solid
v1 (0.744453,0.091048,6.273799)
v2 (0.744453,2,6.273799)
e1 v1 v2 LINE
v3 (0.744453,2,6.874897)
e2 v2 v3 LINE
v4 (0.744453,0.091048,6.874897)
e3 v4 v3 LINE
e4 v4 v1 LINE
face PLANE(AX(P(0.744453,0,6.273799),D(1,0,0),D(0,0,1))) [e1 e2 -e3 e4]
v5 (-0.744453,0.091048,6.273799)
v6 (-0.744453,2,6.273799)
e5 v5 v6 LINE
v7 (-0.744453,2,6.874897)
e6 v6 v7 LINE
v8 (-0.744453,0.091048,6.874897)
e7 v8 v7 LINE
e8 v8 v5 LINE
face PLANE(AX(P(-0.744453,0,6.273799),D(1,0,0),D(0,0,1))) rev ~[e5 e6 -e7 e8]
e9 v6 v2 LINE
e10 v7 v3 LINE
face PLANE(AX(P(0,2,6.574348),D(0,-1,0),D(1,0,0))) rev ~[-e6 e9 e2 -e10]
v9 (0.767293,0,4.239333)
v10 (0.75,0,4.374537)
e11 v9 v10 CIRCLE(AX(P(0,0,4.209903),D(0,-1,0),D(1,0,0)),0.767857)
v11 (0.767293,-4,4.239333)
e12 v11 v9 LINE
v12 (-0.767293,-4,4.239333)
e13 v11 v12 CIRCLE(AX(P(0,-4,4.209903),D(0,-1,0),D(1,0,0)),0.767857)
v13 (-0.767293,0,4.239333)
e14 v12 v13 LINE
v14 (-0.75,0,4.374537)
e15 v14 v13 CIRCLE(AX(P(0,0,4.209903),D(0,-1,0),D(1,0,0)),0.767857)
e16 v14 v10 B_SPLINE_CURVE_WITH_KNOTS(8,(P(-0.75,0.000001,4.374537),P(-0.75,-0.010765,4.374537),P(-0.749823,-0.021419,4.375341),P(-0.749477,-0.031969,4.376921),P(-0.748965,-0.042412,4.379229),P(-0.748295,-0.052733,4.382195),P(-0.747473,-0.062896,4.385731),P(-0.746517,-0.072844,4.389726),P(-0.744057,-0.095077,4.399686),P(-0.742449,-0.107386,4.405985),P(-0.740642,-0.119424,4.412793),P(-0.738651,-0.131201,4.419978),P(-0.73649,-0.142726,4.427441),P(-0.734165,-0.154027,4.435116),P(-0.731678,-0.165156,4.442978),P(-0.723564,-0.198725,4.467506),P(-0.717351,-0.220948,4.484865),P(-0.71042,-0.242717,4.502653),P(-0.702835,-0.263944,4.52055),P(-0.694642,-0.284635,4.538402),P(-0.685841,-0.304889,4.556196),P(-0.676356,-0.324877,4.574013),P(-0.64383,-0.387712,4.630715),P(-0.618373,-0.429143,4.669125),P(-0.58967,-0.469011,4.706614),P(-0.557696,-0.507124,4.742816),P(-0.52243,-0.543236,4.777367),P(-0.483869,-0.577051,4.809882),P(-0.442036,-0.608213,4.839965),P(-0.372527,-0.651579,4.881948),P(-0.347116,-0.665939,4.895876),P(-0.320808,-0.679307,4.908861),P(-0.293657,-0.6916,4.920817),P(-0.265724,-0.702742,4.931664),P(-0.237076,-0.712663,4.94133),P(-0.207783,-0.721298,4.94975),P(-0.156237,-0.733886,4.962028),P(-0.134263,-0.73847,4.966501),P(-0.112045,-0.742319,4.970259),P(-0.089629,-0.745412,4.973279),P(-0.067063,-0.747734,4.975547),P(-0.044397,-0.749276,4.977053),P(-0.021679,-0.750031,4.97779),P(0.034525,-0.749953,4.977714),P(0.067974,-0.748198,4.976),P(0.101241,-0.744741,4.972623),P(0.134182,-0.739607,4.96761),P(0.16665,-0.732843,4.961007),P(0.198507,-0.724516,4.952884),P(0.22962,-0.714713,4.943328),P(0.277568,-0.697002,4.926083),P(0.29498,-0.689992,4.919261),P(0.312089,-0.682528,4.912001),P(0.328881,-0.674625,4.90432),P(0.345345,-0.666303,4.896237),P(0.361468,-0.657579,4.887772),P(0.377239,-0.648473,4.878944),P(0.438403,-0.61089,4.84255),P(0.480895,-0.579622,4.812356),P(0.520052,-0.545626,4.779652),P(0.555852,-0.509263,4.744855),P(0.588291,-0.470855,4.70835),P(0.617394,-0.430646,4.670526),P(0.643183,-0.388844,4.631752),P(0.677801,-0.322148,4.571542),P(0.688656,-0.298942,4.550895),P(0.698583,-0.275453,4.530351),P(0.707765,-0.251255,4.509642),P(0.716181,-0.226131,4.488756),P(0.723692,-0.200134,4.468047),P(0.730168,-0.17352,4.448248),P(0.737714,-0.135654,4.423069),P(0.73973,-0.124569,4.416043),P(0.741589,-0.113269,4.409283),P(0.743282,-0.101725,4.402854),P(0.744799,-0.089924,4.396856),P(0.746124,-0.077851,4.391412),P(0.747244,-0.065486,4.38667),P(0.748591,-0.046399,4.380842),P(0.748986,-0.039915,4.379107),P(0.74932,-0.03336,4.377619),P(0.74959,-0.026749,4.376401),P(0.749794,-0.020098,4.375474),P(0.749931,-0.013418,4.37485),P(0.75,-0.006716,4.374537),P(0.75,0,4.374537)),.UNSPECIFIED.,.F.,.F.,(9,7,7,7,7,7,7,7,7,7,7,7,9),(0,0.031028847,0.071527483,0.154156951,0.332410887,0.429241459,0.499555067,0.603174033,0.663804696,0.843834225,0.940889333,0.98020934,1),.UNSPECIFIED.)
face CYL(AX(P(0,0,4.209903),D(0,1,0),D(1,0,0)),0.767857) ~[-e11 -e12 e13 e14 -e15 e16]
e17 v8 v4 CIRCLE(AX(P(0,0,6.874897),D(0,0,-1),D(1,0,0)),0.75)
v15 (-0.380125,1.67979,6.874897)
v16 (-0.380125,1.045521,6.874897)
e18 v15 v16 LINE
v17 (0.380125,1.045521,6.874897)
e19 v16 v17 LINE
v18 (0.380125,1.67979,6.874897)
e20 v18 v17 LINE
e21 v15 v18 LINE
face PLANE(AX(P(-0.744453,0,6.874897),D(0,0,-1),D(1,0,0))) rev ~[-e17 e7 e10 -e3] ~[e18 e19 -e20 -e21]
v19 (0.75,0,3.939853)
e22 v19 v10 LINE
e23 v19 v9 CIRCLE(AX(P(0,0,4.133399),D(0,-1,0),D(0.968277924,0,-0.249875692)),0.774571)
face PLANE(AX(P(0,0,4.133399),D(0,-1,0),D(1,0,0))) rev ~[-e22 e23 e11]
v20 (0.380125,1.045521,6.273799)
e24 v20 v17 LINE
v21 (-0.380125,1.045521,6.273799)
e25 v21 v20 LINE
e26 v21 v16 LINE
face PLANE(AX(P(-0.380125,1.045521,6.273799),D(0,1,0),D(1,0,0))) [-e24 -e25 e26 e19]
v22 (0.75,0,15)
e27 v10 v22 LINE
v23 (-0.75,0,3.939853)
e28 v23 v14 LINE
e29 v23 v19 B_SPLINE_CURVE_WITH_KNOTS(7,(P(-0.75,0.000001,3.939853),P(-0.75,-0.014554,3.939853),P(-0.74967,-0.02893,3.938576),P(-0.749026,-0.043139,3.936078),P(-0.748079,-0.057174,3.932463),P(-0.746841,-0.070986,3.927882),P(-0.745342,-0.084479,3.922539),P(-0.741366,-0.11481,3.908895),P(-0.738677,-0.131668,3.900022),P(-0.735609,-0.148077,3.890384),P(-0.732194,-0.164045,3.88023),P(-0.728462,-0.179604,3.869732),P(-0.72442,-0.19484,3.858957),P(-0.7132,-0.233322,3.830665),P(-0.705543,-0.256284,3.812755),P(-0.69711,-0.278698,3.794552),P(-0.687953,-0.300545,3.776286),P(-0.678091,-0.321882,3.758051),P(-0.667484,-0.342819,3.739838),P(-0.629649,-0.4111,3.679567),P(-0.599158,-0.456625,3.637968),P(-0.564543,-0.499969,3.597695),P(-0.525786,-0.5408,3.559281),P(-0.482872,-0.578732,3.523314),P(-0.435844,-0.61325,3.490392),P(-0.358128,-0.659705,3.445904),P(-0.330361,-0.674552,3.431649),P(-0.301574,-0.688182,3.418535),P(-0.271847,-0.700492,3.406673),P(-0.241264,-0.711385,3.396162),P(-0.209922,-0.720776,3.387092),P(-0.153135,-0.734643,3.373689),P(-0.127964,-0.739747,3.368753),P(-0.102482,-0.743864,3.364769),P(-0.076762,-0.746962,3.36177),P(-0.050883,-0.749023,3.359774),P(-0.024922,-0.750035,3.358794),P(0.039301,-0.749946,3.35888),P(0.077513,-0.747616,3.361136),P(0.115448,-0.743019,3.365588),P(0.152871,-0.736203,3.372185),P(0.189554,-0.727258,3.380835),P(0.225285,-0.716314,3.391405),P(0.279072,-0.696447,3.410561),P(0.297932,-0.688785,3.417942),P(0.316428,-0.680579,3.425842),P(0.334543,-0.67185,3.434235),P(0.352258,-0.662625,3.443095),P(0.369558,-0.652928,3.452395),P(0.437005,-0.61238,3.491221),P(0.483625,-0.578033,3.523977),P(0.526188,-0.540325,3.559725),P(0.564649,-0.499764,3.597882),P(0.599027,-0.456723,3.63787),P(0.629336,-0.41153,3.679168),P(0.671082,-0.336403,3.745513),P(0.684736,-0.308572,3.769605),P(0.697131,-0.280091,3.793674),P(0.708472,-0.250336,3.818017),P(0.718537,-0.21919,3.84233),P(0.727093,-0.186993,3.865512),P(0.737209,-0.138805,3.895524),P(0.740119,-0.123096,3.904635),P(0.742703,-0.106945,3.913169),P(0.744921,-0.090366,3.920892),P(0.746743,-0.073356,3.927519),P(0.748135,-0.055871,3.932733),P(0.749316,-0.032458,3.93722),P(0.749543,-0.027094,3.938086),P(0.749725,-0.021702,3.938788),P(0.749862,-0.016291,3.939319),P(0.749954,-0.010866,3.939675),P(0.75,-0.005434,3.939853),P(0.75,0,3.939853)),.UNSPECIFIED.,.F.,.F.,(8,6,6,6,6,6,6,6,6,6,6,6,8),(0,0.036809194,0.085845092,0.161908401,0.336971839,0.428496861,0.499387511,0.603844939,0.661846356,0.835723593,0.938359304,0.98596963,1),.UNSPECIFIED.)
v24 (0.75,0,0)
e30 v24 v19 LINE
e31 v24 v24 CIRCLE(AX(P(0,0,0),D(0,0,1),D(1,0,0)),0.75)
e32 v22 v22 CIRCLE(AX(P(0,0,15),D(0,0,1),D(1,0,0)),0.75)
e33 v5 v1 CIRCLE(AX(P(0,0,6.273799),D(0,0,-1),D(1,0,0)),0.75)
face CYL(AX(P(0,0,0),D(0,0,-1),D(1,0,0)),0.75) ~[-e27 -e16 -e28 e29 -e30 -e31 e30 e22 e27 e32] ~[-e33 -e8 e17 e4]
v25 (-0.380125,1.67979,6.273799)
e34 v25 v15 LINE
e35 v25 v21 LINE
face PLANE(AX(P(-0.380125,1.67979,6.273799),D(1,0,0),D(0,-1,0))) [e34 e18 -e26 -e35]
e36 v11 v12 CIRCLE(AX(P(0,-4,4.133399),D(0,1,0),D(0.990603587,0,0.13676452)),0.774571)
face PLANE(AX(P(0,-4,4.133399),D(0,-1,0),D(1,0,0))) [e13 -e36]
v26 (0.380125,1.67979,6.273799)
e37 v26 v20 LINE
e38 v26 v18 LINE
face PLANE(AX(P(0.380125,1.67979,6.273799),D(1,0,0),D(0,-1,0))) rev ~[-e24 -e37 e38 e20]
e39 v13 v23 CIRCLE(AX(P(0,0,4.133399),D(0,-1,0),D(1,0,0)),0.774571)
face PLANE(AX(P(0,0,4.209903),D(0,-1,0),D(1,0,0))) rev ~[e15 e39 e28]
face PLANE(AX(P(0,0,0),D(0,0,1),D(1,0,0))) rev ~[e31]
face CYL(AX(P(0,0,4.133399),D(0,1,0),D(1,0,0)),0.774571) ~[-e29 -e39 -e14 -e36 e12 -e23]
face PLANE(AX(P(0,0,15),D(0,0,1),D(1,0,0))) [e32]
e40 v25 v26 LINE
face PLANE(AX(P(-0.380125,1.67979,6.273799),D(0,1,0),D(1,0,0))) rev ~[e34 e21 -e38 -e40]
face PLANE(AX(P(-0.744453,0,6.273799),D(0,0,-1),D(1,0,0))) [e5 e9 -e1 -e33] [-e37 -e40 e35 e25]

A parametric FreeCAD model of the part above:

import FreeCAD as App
import Part
import Sketcher

V = App.Vector
Q = App.Units.Quantity

doc = App.newDocument("Part")
params = doc.addObject("Spreadsheet::Sheet", "Params")
for row, (alias, value) in enumerate([
    ("sketch1_diameter", "1.5 mm"),
    ("pad1_length", "15 mm"),
    ("pad2_length", "4 mm"),
    ("pad3_length", "4 mm"),
    ("pad4_length", "2 mm"),
    ("pocket1_length", "25 mm"),
], start=1):
    params.set(f"A{row}", alias)
    params.set(f"B{row}", "=" + value)
    params.setAlias(f"B{row}", alias)

body = doc.addObject("PartDesign::Body", "Body")

# Sketch on XY plane
sketch1 = doc.addObject("Sketcher::SketchObject", "Sketch")
body.addObject(sketch1)
sketch1.AttachmentSupport = (doc.XY_Plane, [""])
sketch1.MapMode = "FlatFace"
sketch1.addGeometry(Part.Circle(V(0, 0, 0), V(0, 0, 1), 0.75), False)
sketch1.addConstraint(Sketcher.Constraint("Coincident", 0, 3, -1, 1))
sketch1.addConstraint(Sketcher.Constraint("Diameter", 0, Q("1.5 mm")))
sketch1.setExpression("Constraints[1]", "Params.sketch1_diameter")
pad1 = doc.addObject("PartDesign::Pad", "Pad")
body.addObject(pad1)
pad1.Profile = sketch1
pad1.setExpression("Length", "Params.pad1_length")

# Sketch on XZ plane
sketch2 = doc.addObject("Sketcher::SketchObject", "Sketch001")
body.addObject(sketch2)
sketch2.AttachmentSupport = (doc.XZ_Plane, [""])
sketch2.MapMode = "FlatFace"
sketch2.addGeometry(Part.Circle(V(0, 4.209903, 0), V(0, 0, 1), 0.767857), False)
sketch2.addConstraint(Sketcher.Constraint("PointOnObject", 0, 3, -2))
sketch2.addConstraint(Sketcher.Constraint("Diameter", 0, Q("1.535714 mm")))
sketch2.addConstraint(Sketcher.Constraint("DistanceY", -1, 1, 0, 3, Q("4.209903 mm")))
pad2 = doc.addObject("PartDesign::Pad", "Pad001")
body.addObject(pad2)
pad2.Profile = sketch2
pad2.setExpression("Length", "Params.pad2_length")

# Sketch on XZ plane
sketch3 = doc.addObject("Sketcher::SketchObject", "Sketch002")
body.addObject(sketch3)
sketch3.AttachmentSupport = (doc.XZ_Plane, [""])
sketch3.MapMode = "FlatFace"
sketch3.addGeometry(Part.Circle(V(0, 4.133399, 0), V(0, 0, 1), 0.774571), False)
sketch3.addConstraint(Sketcher.Constraint("PointOnObject", 0, 3, -2))
sketch3.addConstraint(Sketcher.Constraint("Diameter", 0, Q("1.549142 mm")))
sketch3.addConstraint(Sketcher.Constraint("DistanceY", -1, 1, 0, 3, Q("4.133399 mm")))
pad3 = doc.addObject("PartDesign::Pad", "Pad002")
body.addObject(pad3)
pad3.Profile = sketch3
pad3.setExpression("Length", "Params.pad3_length")

# Sketch on XZ plane
sketch4 = doc.addObject("Sketcher::SketchObject", "Sketch003")
body.addObject(sketch4)
sketch4.AttachmentSupport = (doc.XZ_Plane, [""])
sketch4.MapMode = "FlatFace"
sketch4.addGeometry(Part.LineSegment(V(-0.744453, 6.874897, 0), V(-0.744453, 6.273799, 0)), False)
sketch4.addGeometry(Part.LineSegment(V(-0.744453, 6.273799, 0), V(0.744453, 6.273799, 0)), False)
sketch4.addGeometry(Part.LineSegment(V(0.744453, 6.273799, 0), V(0.744453, 6.874897, 0)), False)
sketch4.addGeometry(Part.LineSegment(V(0.744453, 6.874897, 0), V(-0.744453, 6.874897, 0)), False)
sketch4.addConstraint(Sketcher.Constraint("Coincident", 0, 2, 1, 1))
sketch4.addConstraint(Sketcher.Constraint("Coincident", 1, 2, 2, 1))
sketch4.addConstraint(Sketcher.Constraint("Coincident", 2, 2, 3, 1))
sketch4.addConstraint(Sketcher.Constraint("Coincident", 3, 2, 0, 1))
sketch4.addConstraint(Sketcher.Constraint("Vertical", 0))
sketch4.addConstraint(Sketcher.Constraint("Horizontal", 1))
sketch4.addConstraint(Sketcher.Constraint("Vertical", 2))
sketch4.addConstraint(Sketcher.Constraint("Horizontal", 3))
sketch4.addConstraint(Sketcher.Constraint("DistanceY", -1, 1, 0, 2, Q("6.273799 mm")))
sketch4.addConstraint(Sketcher.Constraint("DistanceX", 1, 1, 1, 2, Q("1.488906 mm")))
sketch4.addConstraint(Sketcher.Constraint("DistanceY", 0, 2, 0, 1, Q("0.601098 mm")))
sketch4.addConstraint(Sketcher.Constraint("DistanceX", 0, 2, -1, 1, Q("0.744453 mm")))
pad4 = doc.addObject("PartDesign::Pad", "Pad003")
body.addObject(pad4)
pad4.Profile = sketch4
pad4.setExpression("Length", "Params.pad4_length")
pad4.Reversed = True

# Sketch on XY plane
sketch5 = doc.addObject("Sketcher::SketchObject", "Sketch004")
body.addObject(sketch5)
sketch5.AttachmentSupport = (doc.XY_Plane, [""])
sketch5.MapMode = "FlatFace"
sketch5.AttachmentOffset = App.Placement(V(0, 0, 6.273799), App.Rotation())
sketch5.addGeometry(Part.LineSegment(V(-0.380125, 1.045521, 0), V(-0.380125, 1.67979, 0)), False)
sketch5.addGeometry(Part.LineSegment(V(-0.380125, 1.67979, 0), V(0.380125, 1.67979, 0)), False)
sketch5.addGeometry(Part.LineSegment(V(0.380125, 1.67979, 0), V(0.380125, 1.045521, 0)), False)
sketch5.addGeometry(Part.LineSegment(V(0.380125, 1.045521, 0), V(-0.380125, 1.045521, 0)), False)
sketch5.addConstraint(Sketcher.Constraint("Coincident", 0, 2, 1, 1))
sketch5.addConstraint(Sketcher.Constraint("Coincident", 1, 2, 2, 1))
sketch5.addConstraint(Sketcher.Constraint("Coincident", 2, 2, 3, 1))
sketch5.addConstraint(Sketcher.Constraint("Coincident", 3, 2, 0, 1))
sketch5.addConstraint(Sketcher.Constraint("Vertical", 0))
sketch5.addConstraint(Sketcher.Constraint("Horizontal", 1))
sketch5.addConstraint(Sketcher.Constraint("Vertical", 2))
sketch5.addConstraint(Sketcher.Constraint("Horizontal", 3))
sketch5.addConstraint(Sketcher.Constraint("DistanceX", 1, 1, 1, 2, Q("0.76025 mm")))
sketch5.addConstraint(Sketcher.Constraint("DistanceY", 0, 1, 0, 2, Q("0.634269 mm")))
sketch5.addConstraint(Sketcher.Constraint("DistanceY", -1, 1, 0, 2, Q("1.67979 mm")))
sketch5.addConstraint(Sketcher.Constraint("DistanceX", 0, 2, -1, 1, Q("0.380125 mm")))
pocket1 = doc.addObject("PartDesign::Pocket", "Pocket")
body.addObject(pocket1)
pocket1.Profile = sketch5
pocket1.setExpression("Length", "Params.pocket1_length")
pocket1.Reversed = True

doc.recompute()
